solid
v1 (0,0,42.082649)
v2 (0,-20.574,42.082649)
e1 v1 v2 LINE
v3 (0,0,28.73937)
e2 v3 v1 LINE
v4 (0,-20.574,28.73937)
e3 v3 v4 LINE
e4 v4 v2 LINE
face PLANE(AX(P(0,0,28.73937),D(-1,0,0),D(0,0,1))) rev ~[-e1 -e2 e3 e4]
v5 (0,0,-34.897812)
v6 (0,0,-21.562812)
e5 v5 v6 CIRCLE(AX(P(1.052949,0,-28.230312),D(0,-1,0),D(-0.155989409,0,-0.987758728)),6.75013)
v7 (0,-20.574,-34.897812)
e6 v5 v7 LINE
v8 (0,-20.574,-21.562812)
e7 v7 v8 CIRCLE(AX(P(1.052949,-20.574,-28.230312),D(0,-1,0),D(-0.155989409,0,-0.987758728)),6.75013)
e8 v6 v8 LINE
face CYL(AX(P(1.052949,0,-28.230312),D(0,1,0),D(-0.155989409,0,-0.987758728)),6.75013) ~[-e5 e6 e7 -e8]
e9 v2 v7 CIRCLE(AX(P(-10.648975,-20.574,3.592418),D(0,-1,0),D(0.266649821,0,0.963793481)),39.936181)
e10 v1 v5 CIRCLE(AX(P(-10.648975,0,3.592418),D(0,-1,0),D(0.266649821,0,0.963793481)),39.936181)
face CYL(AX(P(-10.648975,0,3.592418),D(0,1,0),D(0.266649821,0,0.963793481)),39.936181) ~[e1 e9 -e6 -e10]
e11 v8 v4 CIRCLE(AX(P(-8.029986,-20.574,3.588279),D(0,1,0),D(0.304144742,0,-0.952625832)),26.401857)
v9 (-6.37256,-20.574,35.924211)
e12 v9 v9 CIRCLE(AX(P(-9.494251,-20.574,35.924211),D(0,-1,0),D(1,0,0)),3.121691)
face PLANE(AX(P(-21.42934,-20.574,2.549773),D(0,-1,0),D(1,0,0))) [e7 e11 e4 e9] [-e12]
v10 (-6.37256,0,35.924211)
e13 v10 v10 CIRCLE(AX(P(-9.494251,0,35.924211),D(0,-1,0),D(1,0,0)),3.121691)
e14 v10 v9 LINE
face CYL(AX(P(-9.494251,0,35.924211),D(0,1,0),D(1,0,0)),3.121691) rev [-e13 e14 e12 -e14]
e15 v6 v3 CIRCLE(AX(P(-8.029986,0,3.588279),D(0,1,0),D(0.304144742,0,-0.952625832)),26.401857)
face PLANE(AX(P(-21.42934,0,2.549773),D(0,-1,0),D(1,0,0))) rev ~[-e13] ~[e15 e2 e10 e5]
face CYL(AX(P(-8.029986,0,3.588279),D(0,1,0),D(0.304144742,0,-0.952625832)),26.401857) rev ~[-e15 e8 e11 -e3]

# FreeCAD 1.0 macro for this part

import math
import FreeCAD as App
import Part
import Sketcher
Q = App.Units.Quantity

doc = App.newDocument("Part")
params = doc.addObject("Spreadsheet::Sheet", "Params")
for row, (alias, value) in enumerate([
    ("pad1_length", "0.81 in"),
], start=1):
    params.set(f"A{row}", alias)
    params.set(f"B{row}", "=" + value)
    params.setAlias(f"B{row}", alias)

body = doc.addObject("PartDesign::Body", "Body")

sketch1 = doc.addObject("Sketcher::SketchObject", "Sketch")
body.addObject(sketch1)
sketch1.AttachmentSupport = (doc.XZ_Plane, [""])
sketch1.MapMode = "FlatFace"
sketch1.addGeometry([
    Part.LineSegment(App.Vector(0, 28.73937, 0), App.Vector(0, 42.082649, 0)),
    Part.ArcOfCircle(Part.Circle(App.Vector(-10.648975, 3.592418, 0), App.Vector(0, 0, 1), 39.936181), math.radians(74.534992), math.radians(285.465008)),
    Part.ArcOfCircle(Part.Circle(App.Vector(1.052949, -28.230312, 0), App.Vector(0, 0, 1), 6.75013), math.radians(-98.974183), math.radians(98.974183)),
    Part.ArcOfCircle(Part.Circle(App.Vector(-8.029986, 3.588279, 0), App.Vector(0, 0, 1), 26.401857), math.radians(72.293283), math.radians(287.706717)),
    Part.Circle(App.Vector(-9.494251, 35.924211, 0), App.Vector(0, 0, 1), 3.121691),
], False)
sketch1.addConstraint([
    Sketcher.Constraint("Coincident", 0, 2, 1, 1),
    Sketcher.Constraint("Coincident", 1, 2, 2, 1),
    Sketcher.Constraint("Coincident", 2, 2, 3, 2),
    Sketcher.Constraint("Coincident", 3, 1, 0, 1),
    Sketcher.Constraint("Vertical", 0),
    Sketcher.Constraint("PointOnObject", 0, 2, -2),
    Sketcher.Constraint("PointOnObject", 1, 2, -2),
    Sketcher.Constraint("PointOnObject", 2, 2, -2),
    Sketcher.Constraint("Radius", 1, Q("39.936181 mm")),
    Sketcher.Constraint("Radius", 2, Q("6.75013 mm")),
    Sketcher.Constraint("DistanceY", 1, 2, 2, 2, Q("0.525 in")),
    Sketcher.Constraint("Diameter", 4, Q("6.243382 mm")),
    Sketcher.Constraint("Radius", 3, Q("26.401857 mm")),
    Sketcher.Constraint("DistanceY", 0, 1, 0, 2, Q("13.343279 mm")),
    Sketcher.Constraint("DistanceX", 4, 3, 2, 3, Q("10.5472 mm")),
    Sketcher.Constraint("DistanceY", -1, 1, 1, 3, Q("3.592418 mm")),
    Sketcher.Constraint("DistanceY", -1, 1, 4, 3, Q("35.924211 mm")),
    Sketcher.Constraint("DistanceY", -1, 1, 0, 2, Q("42.082649 mm")),
])
pad1 = doc.addObject("PartDesign::Pad", "Pad")
body.addObject(pad1)
pad1.Profile = sketch1
pad1.setExpression("Length", "Params.pad1_length")

doc.recompute()
